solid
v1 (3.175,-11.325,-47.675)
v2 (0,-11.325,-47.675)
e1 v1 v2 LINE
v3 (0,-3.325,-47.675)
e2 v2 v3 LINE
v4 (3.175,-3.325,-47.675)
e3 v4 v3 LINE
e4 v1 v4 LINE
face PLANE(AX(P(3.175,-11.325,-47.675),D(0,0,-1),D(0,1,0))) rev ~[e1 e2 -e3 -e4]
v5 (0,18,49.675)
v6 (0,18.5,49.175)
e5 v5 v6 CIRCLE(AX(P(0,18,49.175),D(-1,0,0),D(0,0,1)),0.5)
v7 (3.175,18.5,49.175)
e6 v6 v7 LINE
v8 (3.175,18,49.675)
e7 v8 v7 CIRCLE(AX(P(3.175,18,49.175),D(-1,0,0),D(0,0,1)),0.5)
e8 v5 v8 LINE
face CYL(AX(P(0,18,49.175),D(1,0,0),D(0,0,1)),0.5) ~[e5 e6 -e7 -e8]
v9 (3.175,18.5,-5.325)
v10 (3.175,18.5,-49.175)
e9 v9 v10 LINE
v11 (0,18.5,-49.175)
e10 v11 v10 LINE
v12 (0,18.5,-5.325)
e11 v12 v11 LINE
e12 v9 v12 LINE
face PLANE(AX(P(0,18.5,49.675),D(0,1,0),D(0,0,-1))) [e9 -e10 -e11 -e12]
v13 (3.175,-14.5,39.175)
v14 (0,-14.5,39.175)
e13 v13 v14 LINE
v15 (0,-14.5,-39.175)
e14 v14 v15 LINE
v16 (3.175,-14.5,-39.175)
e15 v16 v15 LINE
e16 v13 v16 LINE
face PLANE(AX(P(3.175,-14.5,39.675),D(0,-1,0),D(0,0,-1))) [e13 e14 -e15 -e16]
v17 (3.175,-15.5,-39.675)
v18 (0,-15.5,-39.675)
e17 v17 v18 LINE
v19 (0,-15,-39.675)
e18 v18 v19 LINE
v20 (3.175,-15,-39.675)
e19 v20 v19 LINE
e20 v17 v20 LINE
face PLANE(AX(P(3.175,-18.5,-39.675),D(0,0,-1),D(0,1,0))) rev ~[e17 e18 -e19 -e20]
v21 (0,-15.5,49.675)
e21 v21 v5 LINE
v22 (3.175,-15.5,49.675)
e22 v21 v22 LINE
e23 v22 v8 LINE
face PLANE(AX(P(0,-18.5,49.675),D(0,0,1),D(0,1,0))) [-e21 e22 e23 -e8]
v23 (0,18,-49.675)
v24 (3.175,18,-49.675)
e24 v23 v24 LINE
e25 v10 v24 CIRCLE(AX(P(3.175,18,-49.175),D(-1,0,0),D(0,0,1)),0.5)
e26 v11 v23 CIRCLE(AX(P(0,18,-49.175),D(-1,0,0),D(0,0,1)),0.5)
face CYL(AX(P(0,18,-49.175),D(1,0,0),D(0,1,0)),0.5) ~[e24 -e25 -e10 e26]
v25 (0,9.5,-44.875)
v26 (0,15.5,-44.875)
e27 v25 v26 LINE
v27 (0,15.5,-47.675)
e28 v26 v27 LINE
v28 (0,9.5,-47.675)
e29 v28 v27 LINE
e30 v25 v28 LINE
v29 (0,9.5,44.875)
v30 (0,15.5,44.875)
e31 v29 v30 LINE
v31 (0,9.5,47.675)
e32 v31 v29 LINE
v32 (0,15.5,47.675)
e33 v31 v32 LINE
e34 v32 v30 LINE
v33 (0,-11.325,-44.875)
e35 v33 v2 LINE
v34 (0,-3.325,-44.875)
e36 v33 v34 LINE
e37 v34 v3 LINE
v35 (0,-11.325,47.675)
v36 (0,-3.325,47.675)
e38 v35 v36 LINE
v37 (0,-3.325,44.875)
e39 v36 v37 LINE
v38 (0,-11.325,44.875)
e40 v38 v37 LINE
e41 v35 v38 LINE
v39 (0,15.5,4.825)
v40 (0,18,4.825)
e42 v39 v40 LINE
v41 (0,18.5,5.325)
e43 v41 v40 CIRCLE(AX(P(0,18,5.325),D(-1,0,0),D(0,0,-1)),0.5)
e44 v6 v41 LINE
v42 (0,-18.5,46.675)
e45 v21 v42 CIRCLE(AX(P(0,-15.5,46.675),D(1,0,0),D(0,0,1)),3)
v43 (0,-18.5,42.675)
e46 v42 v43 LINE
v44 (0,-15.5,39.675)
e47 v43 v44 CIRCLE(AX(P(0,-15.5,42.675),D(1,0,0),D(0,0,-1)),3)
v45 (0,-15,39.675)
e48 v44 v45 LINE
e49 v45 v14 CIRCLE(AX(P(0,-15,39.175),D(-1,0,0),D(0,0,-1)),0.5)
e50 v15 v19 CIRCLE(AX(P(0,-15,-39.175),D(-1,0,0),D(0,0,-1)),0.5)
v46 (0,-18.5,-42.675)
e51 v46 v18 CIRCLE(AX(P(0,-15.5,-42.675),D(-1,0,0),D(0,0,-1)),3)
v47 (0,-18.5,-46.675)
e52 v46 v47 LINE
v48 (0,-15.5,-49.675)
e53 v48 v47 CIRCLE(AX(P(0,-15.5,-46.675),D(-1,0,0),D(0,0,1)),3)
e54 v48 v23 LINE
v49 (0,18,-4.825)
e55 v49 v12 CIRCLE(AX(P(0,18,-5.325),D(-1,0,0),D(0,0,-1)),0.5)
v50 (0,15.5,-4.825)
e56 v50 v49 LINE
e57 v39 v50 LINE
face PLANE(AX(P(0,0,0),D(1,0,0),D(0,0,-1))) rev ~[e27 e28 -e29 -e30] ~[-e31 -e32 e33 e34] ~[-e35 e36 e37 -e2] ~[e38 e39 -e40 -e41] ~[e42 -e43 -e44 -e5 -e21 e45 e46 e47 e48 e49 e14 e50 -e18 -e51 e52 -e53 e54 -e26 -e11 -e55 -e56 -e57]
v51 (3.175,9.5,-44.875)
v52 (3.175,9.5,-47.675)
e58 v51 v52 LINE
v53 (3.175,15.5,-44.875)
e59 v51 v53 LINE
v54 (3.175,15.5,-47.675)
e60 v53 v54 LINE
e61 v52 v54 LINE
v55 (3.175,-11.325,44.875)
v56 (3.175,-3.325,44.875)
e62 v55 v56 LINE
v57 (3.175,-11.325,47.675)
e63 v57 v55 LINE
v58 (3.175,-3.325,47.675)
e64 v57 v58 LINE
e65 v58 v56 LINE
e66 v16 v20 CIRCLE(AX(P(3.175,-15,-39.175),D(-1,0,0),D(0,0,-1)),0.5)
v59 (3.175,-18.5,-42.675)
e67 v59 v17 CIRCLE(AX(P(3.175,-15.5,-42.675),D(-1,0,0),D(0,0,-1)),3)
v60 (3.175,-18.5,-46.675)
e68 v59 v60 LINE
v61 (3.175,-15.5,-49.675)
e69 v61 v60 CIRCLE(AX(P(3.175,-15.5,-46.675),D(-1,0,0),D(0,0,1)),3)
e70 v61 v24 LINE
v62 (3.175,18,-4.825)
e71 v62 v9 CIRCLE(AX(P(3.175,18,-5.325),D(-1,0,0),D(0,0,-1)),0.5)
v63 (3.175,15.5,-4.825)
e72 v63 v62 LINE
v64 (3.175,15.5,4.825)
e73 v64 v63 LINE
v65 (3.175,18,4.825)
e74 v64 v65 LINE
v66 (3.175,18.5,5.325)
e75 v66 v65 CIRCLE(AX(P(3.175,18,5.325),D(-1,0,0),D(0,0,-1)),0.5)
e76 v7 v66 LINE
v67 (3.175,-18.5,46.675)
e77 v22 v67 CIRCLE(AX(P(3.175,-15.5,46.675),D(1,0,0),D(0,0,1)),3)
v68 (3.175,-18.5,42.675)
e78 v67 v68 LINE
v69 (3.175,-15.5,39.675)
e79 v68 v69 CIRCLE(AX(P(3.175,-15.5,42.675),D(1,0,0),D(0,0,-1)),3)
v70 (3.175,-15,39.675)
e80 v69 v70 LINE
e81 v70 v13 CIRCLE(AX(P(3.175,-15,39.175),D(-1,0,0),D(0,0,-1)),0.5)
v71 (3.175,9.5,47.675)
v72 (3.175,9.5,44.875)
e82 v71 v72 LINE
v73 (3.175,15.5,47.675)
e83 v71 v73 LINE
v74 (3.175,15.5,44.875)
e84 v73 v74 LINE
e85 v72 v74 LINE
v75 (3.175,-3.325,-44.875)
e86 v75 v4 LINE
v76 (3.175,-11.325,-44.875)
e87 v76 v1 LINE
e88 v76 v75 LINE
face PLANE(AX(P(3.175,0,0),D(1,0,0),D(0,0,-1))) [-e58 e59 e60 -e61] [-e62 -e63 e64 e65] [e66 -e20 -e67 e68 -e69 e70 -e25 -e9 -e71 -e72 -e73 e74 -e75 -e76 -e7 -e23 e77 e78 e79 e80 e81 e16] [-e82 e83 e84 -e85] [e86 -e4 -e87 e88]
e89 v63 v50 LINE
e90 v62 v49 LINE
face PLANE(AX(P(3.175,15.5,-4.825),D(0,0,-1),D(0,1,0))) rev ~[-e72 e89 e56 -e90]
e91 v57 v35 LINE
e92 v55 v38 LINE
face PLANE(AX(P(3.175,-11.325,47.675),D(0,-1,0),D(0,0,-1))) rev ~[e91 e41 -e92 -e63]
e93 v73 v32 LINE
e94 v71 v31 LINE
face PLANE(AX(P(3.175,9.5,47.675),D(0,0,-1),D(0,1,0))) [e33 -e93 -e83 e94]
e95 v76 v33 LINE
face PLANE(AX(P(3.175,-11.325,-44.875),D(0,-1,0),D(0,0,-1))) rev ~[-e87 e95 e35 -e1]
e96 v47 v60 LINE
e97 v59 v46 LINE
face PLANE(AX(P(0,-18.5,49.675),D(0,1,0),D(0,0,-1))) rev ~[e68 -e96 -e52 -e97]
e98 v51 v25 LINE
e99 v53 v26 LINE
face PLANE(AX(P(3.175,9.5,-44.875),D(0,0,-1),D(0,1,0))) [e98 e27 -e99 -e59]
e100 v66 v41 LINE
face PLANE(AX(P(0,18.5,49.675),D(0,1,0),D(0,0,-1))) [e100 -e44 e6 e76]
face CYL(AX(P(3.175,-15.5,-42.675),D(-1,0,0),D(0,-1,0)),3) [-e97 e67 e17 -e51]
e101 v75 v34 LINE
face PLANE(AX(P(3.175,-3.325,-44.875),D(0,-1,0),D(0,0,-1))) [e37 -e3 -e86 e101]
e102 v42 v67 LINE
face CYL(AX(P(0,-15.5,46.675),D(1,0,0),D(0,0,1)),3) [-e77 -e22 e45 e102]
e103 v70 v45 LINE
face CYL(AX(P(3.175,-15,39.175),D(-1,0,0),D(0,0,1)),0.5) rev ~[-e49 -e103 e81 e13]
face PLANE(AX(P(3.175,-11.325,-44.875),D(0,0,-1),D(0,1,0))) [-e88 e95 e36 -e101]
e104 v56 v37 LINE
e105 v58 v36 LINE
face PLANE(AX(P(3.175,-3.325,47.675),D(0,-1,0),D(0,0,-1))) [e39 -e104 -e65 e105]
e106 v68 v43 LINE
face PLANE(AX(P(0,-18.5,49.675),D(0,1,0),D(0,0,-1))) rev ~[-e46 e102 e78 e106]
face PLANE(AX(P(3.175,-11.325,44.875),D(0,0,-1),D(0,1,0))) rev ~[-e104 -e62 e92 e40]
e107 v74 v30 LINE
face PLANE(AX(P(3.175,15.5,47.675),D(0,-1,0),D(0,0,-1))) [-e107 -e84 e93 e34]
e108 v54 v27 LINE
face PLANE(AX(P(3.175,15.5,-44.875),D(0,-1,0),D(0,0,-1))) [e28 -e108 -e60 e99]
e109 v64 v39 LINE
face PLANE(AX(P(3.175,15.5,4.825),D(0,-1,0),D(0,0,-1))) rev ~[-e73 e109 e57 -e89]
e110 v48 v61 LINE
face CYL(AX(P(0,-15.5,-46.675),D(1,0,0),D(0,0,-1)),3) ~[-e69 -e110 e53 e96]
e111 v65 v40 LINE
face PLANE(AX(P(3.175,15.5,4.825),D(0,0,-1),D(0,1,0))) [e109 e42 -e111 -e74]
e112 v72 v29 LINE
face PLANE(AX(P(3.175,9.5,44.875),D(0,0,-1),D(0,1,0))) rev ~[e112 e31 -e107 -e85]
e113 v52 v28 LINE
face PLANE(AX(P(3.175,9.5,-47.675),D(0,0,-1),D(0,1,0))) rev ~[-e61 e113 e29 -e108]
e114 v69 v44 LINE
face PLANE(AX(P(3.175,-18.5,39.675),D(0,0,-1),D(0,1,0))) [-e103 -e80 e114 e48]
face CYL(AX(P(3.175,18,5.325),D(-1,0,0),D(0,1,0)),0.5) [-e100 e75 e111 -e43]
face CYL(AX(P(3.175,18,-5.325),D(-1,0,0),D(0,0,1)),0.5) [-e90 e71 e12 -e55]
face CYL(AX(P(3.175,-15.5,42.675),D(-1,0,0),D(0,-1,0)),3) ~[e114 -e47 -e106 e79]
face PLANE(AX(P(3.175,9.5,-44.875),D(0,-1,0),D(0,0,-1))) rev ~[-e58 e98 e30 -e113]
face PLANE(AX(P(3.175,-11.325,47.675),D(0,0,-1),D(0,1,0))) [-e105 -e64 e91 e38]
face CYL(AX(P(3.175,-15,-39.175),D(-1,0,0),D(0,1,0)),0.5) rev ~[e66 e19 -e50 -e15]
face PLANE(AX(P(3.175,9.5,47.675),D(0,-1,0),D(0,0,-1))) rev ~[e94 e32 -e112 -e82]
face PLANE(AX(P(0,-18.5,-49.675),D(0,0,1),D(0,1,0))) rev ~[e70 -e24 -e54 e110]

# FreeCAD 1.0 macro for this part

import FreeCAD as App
import Part
import Sketcher

V = App.Vector


def edges_at(feature, points):
    """Names of the edges that pass closest to the given points."""
    edges = feature.Shape.Edges
    near = lambda p: min(range(len(edges)), key=lambda i: edges[i].distToShape(Part.Vertex(*p))[0])
    return sorted({f"Edge{near(p) + 1}" for p in points})


def add_polygon(sketch, points):
    """Adds a closed chain of lines whose ends are joined by coincident constraints."""
    first, n = sketch.GeometryCount, len(points)
    for a, b in zip(points, points[1:] + points[:1]):
        sketch.addGeometry(Part.LineSegment(App.Vector(*a, 0), App.Vector(*b, 0)), False)
    for i in range(n):
        sketch.addConstraint(Sketcher.Constraint("Coincident", first + i, 2, first + (i + 1) % n, 1))

doc = App.newDocument("Part")
params = doc.addObject("Spreadsheet::Sheet", "Params")
for row, (alias, value) in enumerate([
    ("sketch1_width", "37 mm"),
    ("sketch1_height", "99.35 mm"),
    ("pad1_length", "3.175 mm"),
    ("sketch2_width", "6 mm"),
    ("sketch2_width2", "8 mm"),
    ("sketch2_height", "2.8 mm"),
    ("sketch3_width", "4 mm"),
    ("sketch3_height", "79.35 mm"),
    ("fillet_radius", "3 mm"),
    ("fillet2_radius", "0.5 mm"),
    ("sketch4_width", "3 mm"),
    ("sketch4_height", "9.65 mm"),
    ("fillet3_radius", "0.5 mm"),
], start=1):
    params.set(f"A{row}", alias)
    params.set(f"B{row}", "=" + value)
    params.setAlias(f"B{row}", alias)

body = doc.addObject("PartDesign::Body", "Body")

# Sketch on YZ plane
sketch1 = doc.addObject("Sketcher::SketchObject", "Sketch")
body.addObject(sketch1)
sketch1.AttachmentSupport = (doc.YZ_Plane, [""])
sketch1.MapMode = "FlatFace"
add_polygon(sketch1, [(18, 50), (-18, 50), (-18, -50), (18, -50)])  # lines 0-3
sketch1.addConstraint([
    Sketcher.Constraint("Horizontal", 0),
    Sketcher.Constraint("Vertical", 1),
    Sketcher.Constraint("Horizontal", 2),
    Sketcher.Constraint("Vertical", 3),
    Sketcher.Constraint("Symmetric", 0, 2, 2, 2, -1, 1),
    Sketcher.Constraint("DistanceX", 0, 2, 0, 1, 37.0),
    Sketcher.Constraint("DistanceY", 1, 2, 1, 1, 99.35),
])
sketch1.setExpression("Constraints[9]", "Params.sketch1_width")
sketch1.setExpression("Constraints[10]", "Params.sketch1_height")
pad1 = doc.addObject("PartDesign::Pad", "Pad")
body.addObject(pad1)
pad1.Profile = sketch1
pad1.setExpression("Length", "Params.pad1_length")

# Sketch on YZ plane
sketch2 = doc.addObject("Sketcher::SketchObject", "Sketch001")
body.addObject(sketch2)
sketch2.AttachmentSupport = (doc.YZ_Plane, [""])
sketch2.MapMode = "FlatFace"
sketch2.AttachmentOffset = App.Placement(V(0, 0, 3.175), App.Rotation())
add_polygon(sketch2, [(15.5, 47.7), (9.5, 47.7), (9.5, 44.9), (15.5, 44.9)])  # lines 0-3
add_polygon(sketch2, [(15.5, -44.9), (9.5, -44.9), (9.5, -47.7), (15.5, -47.7)])  # lines 4-7
add_polygon(sketch2, [(-3.3, 47.7), (-11.3, 47.7), (-11.3, 44.9), (-3.3, 44.9)])  # lines 8-11
add_polygon(sketch2, [(-3.3, -44.9), (-11.3, -44.9), (-11.3, -47.7), (-3.3, -47.7)])  # lines 12-15
sketch2.addConstraint([
    Sketcher.Constraint("Horizontal", 0),
    Sketcher.Constraint("Vertical", 1),
    Sketcher.Constraint("Horizontal", 2),
    Sketcher.Constraint("Vertical", 3),
    Sketcher.Constraint("Horizontal", 4),
    Sketcher.Constraint("Vertical", 5),
    Sketcher.Constraint("Horizontal", 6),
    Sketcher.Constraint("Vertical", 7),
    Sketcher.Constraint("Horizontal", 8),
    Sketcher.Constraint("Vertical", 9),
    Sketcher.Constraint("Horizontal", 10),
    Sketcher.Constraint("Vertical", 11),
    Sketcher.Constraint("Horizontal", 12),
    Sketcher.Constraint("Vertical", 13),
    Sketcher.Constraint("Horizontal", 14),
    Sketcher.Constraint("Vertical", 15),
    Sketcher.Constraint("Symmetric", 1, 2, 4, 2, -1),
    Sketcher.Constraint("Symmetric", 3, 2, 6, 2, -1),
    Sketcher.Constraint("Symmetric", 9, 2, 12, 2, -1),
    Sketcher.Constraint("Symmetric", 11, 2, 14, 2, -1),
    Sketcher.Constraint("Horizontal", 3, 2, 8, 2),
    Sketcher.Constraint("Horizontal", 2, 2, 9, 2),
    Sketcher.Constraint("DistanceX", 0, 2, 0, 1, 6.0),
    Sketcher.Constraint("DistanceX", 8, 2, 8, 1, 8.0),
    Sketcher.Constraint("DistanceY", 1, 2, 1, 1, 2.8),
    Sketcher.Constraint("DistanceX", -1, 1, 0, 2, 9.5),
    Sketcher.Constraint("DistanceY", 4, 2, 1, 2, 89.75),
    Sketcher.Constraint("DistanceX", 8, 2, -1, 1, 11.325),
])
sketch2.setExpression("Constraints[38]", "Params.sketch2_width")
sketch2.setExpression("Constraints[39]", "Params.sketch2_width2")
sketch2.setExpression("Constraints[40]", "Params.sketch2_height")
pocket1 = doc.addObject("PartDesign::Pocket", "Pocket")
body.addObject(pocket1)
pocket1.Profile = sketch2
pocket1.Type = "ThroughAll"

# Sketch on YZ plane
sketch3 = doc.addObject("Sketcher::SketchObject", "Sketch002")
body.addObject(sketch3)
sketch3.AttachmentSupport = (doc.YZ_Plane, [""])
sketch3.MapMode = "FlatFace"
sketch3.AttachmentOffset = App.Placement(V(0, 0, 3.175), App.Rotation())
add_polygon(sketch3, [(-14.5, 39.7), (-18.5, 39.7), (-18.5, -39.7), (-14.5, -39.7)])  # lines 0-3
sketch3.addConstraint([
    Sketcher.Constraint("Horizontal", 0),
    Sketcher.Constraint("Vertical", 1),
    Sketcher.Constraint("Horizontal", 2),
    Sketcher.Constraint("Vertical", 3),
    Sketcher.Constraint("DistanceX", 0, 2, 0, 1, 4.0),
    Sketcher.Constraint("DistanceY", 1, 2, 1, 1, 79.35),
    Sketcher.Constraint("DistanceX", 0, 2, -1, 1, 18.5),
    Sketcher.Constraint("DistanceY", -1, 1, 0, 2, 39.675),
])
sketch3.setExpression("Constraints[8]", "Params.sketch3_width")
sketch3.setExpression("Constraints[9]", "Params.sketch3_height")
pocket2 = doc.addObject("PartDesign::Pocket", "Pocket001")
body.addObject(pocket2)
pocket2.Profile = sketch3
pocket2.Type = "ThroughAll"
doc.recompute()

fillet = doc.addObject("PartDesign::Fillet", "Fillet")
body.addObject(fillet)
fillet.Base = (pocket2, edges_at(pocket2, [
    (1.587, -18.5, -49.675),
    (1.587, -18.5, 49.675),
    (1.587, -18.5, 39.675),
    (1.587, -18.5, -39.675),
]))
fillet.setExpression("Radius", "Params.fillet_radius")
doc.recompute()

fillet2 = doc.addObject("PartDesign::Fillet", "Fillet001")
body.addObject(fillet2)
fillet2.Base = (fillet, edges_at(fillet, [
    (1.587, 18.5, 49.675),
    (1.587, 18.5, -49.675),
    (1.587, -14.5, 39.675),
    (1.587, -14.5, -39.675),
]))
fillet2.setExpression("Radius", "Params.fillet2_radius")

# Sketch on YZ plane
sketch4 = doc.addObject("Sketcher::SketchObject", "Sketch003")
body.addObject(sketch4)
sketch4.AttachmentSupport = (doc.YZ_Plane, [""])
sketch4.MapMode = "FlatFace"
sketch4.AttachmentOffset = App.Placement(V(0, 0, 3.175), App.Rotation())
add_polygon(sketch4, [(18.5, 4.8), (15.5, 4.8), (15.5, -4.8), (18.5, -4.8)])  # lines 0-3
sketch4.addConstraint([
    Sketcher.Constraint("Horizontal", 0),
    Sketcher.Constraint("Vertical", 1),
    Sketcher.Constraint("Horizontal", 2),
    Sketcher.Constraint("Vertical", 3),
    Sketcher.Constraint("DistanceX", 0, 2, 0, 1, 3.0),
    Sketcher.Constraint("DistanceY", 1, 2, 1, 1, 9.65),
    Sketcher.Constraint("DistanceX", -1, 1, 0, 2, 15.5),
    Sketcher.Constraint("DistanceY", -1, 1, 0, 2, 4.825),
])
sketch4.setExpression("Constraints[8]", "Params.sketch4_width")
sketch4.setExpression("Constraints[9]", "Params.sketch4_height")
pocket3 = doc.addObject("PartDesign::Pocket", "Pocket002")
body.addObject(pocket3)
pocket3.Profile = sketch4
pocket3.Type = "ThroughAll"
doc.recompute()

fillet3 = doc.addObject("PartDesign::Fillet", "Fillet002")
body.addObject(fillet3)
fillet3.Base = (pocket3, edges_at(pocket3, [(1.587, 18.5, 4.825), (1.587, 18.5, -4.825)]))
fillet3.setExpression("Radius", "Params.fillet3_radius")

doc.recompute()
